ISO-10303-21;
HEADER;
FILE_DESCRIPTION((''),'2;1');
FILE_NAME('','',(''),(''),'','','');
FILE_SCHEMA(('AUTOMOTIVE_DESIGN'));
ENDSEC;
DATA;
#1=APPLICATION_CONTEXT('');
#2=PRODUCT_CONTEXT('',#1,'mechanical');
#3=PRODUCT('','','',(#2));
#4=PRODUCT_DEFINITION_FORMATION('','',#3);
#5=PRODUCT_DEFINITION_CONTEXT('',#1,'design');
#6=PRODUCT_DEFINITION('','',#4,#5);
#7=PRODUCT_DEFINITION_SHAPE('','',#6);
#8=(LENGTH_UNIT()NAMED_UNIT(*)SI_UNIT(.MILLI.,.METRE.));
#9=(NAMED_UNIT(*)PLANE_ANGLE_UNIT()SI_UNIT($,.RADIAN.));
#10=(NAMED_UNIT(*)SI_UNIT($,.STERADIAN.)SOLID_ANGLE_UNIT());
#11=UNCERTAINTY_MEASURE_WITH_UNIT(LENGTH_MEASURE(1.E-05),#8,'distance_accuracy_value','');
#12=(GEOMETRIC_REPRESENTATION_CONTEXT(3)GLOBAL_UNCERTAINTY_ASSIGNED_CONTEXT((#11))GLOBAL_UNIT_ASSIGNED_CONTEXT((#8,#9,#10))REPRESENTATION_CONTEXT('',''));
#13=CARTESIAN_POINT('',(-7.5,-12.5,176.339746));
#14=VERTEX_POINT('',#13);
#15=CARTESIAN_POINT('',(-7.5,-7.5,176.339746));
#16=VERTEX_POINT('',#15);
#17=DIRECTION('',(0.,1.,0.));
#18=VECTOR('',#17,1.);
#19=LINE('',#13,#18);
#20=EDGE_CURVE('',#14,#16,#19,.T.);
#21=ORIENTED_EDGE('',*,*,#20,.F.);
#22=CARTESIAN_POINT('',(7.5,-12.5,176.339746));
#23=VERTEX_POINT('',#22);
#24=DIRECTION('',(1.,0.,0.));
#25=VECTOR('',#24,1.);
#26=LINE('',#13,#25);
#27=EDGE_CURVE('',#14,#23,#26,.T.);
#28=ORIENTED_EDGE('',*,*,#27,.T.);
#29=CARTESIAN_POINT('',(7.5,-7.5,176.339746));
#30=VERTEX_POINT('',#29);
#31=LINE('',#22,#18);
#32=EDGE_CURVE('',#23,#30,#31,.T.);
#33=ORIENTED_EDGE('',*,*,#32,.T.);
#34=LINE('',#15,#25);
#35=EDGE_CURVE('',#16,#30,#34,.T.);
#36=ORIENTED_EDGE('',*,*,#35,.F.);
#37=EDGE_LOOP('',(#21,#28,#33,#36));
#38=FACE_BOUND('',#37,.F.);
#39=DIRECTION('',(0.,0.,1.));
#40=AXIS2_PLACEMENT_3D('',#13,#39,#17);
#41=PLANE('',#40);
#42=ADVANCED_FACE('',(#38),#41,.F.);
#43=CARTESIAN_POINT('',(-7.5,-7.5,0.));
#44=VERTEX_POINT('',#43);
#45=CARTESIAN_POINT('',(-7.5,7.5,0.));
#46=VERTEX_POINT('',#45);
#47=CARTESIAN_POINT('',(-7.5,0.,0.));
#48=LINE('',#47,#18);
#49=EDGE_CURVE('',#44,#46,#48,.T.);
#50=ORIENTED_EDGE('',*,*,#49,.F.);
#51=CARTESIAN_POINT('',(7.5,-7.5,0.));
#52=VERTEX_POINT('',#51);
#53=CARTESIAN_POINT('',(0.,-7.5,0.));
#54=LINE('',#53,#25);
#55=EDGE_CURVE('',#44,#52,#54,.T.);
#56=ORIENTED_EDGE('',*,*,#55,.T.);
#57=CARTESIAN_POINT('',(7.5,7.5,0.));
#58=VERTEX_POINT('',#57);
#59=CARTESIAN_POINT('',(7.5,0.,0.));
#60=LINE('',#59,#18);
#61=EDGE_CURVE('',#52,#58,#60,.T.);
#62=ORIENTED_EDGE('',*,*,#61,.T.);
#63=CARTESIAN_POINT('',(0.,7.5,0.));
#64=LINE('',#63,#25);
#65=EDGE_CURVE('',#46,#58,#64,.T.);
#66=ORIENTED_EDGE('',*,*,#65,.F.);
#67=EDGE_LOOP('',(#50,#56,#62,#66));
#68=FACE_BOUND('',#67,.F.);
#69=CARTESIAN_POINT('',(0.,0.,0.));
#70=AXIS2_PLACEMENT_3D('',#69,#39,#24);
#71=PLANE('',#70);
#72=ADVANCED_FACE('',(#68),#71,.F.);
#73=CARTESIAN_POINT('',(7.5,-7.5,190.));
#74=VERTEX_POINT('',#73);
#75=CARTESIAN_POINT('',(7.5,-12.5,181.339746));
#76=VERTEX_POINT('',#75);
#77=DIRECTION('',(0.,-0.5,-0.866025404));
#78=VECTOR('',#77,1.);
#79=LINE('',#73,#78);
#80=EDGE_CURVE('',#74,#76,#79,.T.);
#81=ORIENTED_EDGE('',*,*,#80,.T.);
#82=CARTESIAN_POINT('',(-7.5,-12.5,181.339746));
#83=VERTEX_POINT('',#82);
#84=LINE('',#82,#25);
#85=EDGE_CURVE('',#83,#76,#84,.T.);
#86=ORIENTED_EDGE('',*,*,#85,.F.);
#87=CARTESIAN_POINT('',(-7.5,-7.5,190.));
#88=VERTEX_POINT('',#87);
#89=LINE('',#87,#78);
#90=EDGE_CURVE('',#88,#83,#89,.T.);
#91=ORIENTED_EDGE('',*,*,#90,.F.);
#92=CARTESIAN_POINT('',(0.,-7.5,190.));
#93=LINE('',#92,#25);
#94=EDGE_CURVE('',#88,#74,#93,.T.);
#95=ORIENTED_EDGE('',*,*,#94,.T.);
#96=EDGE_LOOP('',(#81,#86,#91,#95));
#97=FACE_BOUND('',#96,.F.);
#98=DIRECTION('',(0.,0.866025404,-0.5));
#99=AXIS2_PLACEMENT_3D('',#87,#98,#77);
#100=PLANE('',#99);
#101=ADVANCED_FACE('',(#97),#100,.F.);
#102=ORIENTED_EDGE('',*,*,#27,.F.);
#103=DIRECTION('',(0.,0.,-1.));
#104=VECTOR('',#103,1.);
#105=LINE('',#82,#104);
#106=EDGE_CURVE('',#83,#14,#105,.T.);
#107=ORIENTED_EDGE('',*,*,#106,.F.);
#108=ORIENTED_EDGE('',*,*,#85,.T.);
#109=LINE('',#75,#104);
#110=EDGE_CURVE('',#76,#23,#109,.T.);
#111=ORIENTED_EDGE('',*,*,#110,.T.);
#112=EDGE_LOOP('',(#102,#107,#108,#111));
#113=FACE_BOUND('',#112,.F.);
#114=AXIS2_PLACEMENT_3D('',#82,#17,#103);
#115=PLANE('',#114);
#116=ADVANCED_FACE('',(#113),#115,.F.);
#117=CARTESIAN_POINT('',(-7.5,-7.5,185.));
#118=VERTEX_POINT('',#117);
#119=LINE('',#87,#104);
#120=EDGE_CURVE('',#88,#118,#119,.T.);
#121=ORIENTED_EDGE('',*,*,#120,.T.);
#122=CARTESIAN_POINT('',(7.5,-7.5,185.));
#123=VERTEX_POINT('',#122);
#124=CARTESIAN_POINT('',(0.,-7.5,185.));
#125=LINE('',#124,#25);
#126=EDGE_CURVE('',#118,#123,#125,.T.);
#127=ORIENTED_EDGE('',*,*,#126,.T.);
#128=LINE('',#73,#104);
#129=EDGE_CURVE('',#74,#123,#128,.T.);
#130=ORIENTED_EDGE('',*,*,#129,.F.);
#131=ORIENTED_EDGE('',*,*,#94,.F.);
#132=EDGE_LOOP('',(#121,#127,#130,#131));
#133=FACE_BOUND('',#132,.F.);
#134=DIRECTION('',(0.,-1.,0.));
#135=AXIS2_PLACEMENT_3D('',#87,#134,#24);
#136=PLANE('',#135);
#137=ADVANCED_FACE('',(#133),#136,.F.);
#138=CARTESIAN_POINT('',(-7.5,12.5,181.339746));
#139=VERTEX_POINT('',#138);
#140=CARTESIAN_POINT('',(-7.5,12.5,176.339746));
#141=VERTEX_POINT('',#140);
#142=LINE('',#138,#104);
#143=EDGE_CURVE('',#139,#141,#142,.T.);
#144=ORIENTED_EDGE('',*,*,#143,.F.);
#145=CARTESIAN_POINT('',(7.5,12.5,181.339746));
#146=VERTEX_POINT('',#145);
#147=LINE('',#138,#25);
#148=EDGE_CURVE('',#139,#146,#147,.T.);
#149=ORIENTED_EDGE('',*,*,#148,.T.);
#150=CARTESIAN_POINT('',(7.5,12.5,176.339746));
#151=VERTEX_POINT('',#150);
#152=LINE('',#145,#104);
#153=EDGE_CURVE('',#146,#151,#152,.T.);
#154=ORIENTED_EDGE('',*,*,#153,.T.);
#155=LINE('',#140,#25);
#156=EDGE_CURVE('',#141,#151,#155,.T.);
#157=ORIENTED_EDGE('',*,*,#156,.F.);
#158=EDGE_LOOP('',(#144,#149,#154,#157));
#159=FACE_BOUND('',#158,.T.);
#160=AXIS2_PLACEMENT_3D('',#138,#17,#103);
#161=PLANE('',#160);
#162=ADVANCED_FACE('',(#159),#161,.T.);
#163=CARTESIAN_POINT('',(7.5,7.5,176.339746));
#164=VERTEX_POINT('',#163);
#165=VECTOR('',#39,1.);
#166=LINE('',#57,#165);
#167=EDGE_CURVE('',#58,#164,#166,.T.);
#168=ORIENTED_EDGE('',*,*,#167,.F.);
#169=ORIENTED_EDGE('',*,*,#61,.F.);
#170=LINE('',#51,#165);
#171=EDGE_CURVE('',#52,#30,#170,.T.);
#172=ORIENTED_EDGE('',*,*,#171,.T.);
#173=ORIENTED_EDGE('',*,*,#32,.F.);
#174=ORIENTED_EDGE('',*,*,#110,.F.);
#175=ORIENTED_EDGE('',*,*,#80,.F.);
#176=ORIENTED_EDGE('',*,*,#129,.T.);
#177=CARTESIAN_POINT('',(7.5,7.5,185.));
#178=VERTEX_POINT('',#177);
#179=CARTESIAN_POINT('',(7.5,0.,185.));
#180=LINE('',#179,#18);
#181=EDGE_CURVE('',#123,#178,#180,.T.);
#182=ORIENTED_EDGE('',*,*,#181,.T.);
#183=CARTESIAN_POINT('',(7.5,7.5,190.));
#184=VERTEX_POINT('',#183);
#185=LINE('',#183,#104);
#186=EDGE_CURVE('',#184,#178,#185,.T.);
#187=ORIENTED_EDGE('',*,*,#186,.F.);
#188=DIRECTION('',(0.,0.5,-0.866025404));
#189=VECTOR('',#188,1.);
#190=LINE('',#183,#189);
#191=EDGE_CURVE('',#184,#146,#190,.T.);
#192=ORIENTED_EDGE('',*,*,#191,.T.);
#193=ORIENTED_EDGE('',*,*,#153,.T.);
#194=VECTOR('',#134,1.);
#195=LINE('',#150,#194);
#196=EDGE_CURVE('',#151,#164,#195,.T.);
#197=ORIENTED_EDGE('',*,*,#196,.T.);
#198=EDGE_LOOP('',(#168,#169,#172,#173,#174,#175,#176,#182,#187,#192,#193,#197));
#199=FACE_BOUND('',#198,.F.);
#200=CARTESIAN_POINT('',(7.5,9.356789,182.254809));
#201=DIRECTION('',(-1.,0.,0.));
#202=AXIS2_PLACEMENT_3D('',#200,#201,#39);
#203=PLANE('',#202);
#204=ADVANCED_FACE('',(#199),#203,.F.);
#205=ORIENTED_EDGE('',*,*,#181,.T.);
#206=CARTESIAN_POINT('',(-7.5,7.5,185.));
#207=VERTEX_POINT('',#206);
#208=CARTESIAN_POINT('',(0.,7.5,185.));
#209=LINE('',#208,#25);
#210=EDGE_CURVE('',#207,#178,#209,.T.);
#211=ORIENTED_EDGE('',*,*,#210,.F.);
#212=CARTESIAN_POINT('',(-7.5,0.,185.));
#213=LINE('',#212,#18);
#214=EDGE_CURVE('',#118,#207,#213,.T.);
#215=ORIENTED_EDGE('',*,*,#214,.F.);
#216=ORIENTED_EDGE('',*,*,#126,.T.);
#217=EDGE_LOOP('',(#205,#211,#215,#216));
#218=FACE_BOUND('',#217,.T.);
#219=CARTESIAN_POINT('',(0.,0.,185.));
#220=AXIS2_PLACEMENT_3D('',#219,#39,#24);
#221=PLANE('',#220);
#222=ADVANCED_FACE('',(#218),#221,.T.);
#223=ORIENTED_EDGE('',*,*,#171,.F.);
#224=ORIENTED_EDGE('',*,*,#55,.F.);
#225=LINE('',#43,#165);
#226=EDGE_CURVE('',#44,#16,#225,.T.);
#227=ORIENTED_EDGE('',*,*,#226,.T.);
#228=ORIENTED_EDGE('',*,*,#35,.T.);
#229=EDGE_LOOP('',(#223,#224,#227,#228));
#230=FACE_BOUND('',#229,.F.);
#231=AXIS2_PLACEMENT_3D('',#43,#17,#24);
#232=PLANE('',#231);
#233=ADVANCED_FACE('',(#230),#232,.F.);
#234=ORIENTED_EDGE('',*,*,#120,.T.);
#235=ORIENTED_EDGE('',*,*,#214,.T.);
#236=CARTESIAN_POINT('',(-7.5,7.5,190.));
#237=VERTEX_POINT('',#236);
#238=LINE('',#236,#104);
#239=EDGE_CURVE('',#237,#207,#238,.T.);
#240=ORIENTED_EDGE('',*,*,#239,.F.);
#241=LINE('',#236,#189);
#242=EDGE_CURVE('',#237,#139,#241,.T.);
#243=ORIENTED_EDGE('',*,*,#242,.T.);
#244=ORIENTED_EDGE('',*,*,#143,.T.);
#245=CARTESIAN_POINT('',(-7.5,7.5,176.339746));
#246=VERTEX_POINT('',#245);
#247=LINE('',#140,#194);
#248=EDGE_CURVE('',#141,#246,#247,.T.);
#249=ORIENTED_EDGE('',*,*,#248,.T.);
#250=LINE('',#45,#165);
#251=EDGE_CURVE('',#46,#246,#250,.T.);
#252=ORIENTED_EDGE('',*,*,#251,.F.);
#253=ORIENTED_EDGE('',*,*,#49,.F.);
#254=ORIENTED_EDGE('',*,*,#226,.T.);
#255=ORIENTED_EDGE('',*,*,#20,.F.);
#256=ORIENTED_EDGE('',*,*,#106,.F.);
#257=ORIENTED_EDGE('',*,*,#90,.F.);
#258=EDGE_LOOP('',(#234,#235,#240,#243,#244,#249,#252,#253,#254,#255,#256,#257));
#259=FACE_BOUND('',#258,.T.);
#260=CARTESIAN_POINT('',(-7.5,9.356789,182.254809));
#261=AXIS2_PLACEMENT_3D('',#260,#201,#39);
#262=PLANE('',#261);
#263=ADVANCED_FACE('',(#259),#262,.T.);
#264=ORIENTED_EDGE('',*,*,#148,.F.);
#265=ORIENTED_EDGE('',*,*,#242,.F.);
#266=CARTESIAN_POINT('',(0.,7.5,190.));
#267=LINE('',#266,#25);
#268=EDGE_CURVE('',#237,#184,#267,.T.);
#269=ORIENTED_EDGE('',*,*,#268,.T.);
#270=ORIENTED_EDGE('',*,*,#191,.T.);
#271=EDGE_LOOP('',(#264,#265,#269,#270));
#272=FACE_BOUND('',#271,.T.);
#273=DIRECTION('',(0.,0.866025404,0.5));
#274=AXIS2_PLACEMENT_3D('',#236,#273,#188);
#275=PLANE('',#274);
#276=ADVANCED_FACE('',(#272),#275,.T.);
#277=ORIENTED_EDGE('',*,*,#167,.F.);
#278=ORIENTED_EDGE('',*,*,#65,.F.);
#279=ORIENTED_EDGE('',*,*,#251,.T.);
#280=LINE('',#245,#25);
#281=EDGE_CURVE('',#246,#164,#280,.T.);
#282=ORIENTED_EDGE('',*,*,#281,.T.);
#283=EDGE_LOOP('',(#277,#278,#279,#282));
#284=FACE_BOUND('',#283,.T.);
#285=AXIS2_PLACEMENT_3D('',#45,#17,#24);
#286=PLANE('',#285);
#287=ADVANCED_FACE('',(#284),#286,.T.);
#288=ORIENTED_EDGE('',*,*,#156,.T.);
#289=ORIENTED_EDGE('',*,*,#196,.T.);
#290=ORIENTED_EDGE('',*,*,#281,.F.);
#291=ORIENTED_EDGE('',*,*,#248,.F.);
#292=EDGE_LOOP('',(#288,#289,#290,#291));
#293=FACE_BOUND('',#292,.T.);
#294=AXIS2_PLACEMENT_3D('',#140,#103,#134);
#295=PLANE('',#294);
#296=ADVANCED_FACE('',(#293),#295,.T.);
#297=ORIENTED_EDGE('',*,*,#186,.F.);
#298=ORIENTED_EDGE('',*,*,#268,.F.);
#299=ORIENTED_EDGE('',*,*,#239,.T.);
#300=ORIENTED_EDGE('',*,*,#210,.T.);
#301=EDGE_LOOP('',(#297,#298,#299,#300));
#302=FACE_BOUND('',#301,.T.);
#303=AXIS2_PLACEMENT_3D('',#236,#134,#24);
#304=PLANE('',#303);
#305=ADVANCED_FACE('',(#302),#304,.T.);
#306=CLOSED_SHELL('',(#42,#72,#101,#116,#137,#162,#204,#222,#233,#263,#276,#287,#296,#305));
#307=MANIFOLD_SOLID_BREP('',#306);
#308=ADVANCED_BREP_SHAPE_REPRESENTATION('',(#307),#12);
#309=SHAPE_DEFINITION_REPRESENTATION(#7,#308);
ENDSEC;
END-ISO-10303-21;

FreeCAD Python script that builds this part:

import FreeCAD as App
import Part
import Sketcher

V = App.Vector
Q = App.Units.Quantity

doc = App.newDocument("Part")
body = doc.addObject("PartDesign::Body", "Body")

sketch1 = body.newObject("Sketcher::SketchObject", "Sketch")
sketch1.AttachmentSupport = (doc.getObject("XY_Plane"), [""])
sketch1.MapMode = "FlatFace"
sketch1.addGeometry([
    Part.LineSegment(V(-8, 8, 0), V(-8, -8, 0)),
    Part.LineSegment(V(-8, -8, 0), V(8, -8, 0)),
    Part.LineSegment(V(8, -8, 0), V(8, 8, 0)),
    Part.LineSegment(V(8, 8, 0), V(-8, 8, 0)),
], False)
sketch1.addConstraint([
    Sketcher.Constraint("Coincident", 0, 2, 1, 1),
    Sketcher.Constraint("Coincident", 1, 2, 2, 1),
    Sketcher.Constraint("Coincident", 2, 2, 3, 1),
    Sketcher.Constraint("Coincident", 3, 2, 0, 1),
    Sketcher.Constraint("Vertical", 0),
    Sketcher.Constraint("Horizontal", 1),
    Sketcher.Constraint("Vertical", 2),
    Sketcher.Constraint("Horizontal", 3),
    Sketcher.Constraint("Symmetric", 0, 2, 2, 2, -1, 1),
    Sketcher.Constraint("Equal", 3, 0),
    Sketcher.Constraint("DistanceX", 1, 1, 1, 2, 15.0),
])
pad1 = body.newObject("PartDesign::Pad", "Pad")
pad1.Profile = sketch1
pad1.Length = 190

sketch2 = body.newObject("Sketcher::SketchObject", "Sketch001")
sketch2.AttachmentSupport = (doc.getObject("YZ_Plane"), [""])
sketch2.MapMode = "FlatFace"
sketch2.AttachmentOffset = App.Placement(V(0, 0, -7.5), App.Rotation())
sketch2.addGeometry([
    Part.LineSegment(V(8, 190, 0), V(12, 181, 0)),
    Part.LineSegment(V(12, 181, 0), V(12, 176, 0)),
    Part.LineSegment(V(12, 176, 0), V(8, 176, 0)),
    Part.LineSegment(V(8, 176, 0), V(8, 190, 0)),
    Part.LineSegment(V(-8, 176, 0), V(-12, 176, 0)),
    Part.LineSegment(V(-12, 176, 0), V(-12, 181, 0)),
    Part.LineSegment(V(-12, 181, 0), V(-8, 190, 0)),
    Part.LineSegment(V(-8, 190, 0), V(-8, 176, 0)),
], False)
sketch2.addConstraint([
    Sketcher.Constraint("Coincident", 0, 2, 1, 1),
    Sketcher.Constraint("Coincident", 1, 2, 2, 1),
    Sketcher.Constraint("Coincident", 2, 2, 3, 1),
    Sketcher.Constraint("Coincident", 3, 2, 0, 1),
    Sketcher.Constraint("Coincident", 4, 2, 5, 1),
    Sketcher.Constraint("Coincident", 5, 2, 6, 1),
    Sketcher.Constraint("Coincident", 6, 2, 7, 1),
    Sketcher.Constraint("Coincident", 7, 2, 4, 1),
    Sketcher.Constraint("Vertical", 1),
    Sketcher.Constraint("Horizontal", 2),
    Sketcher.Constraint("Vertical", 3),
    Sketcher.Constraint("Horizontal", 4),
    Sketcher.Constraint("Vertical", 5),
    Sketcher.Constraint("Vertical", 7),
    Sketcher.Constraint("Symmetric", 1, 2, 4, 2, -2),
    Sketcher.Constraint("Symmetric", 3, 2, 6, 2, -2),
    Sketcher.Constraint("Horizontal", 0, 2, 5, 2),
    Sketcher.Constraint("Equal", 4, 1),
    Sketcher.Constraint("DistanceX", 2, 2, 2, 1, 5.0),
    Sketcher.Constraint("Angle", 0, Q("-60 deg")),
    Sketcher.Constraint("DistanceY", -1, 1, 3, 2, 190.0),
    Sketcher.Constraint("DistanceX", 4, 2, 2, 2, 20.0),
])
pad2 = body.newObject("PartDesign::Pad", "Pad001")
pad2.Profile = sketch2
pad2.Length = 15

sketch3 = body.newObject("Sketcher::SketchObject", "Sketch002")
sketch3.AttachmentSupport = (doc.getObject("XY_Plane"), [""])
sketch3.MapMode = "FlatFace"
sketch3.AttachmentOffset = App.Placement(V(0, 0, 190), App.Rotation())
sketch3.addGeometry([
    Part.LineSegment(V(-8, 8, 0), V(-8, -8, 0)),
    Part.LineSegment(V(-8, -8, 0), V(8, -8, 0)),
    Part.LineSegment(V(8, -8, 0), V(8, 8, 0)),
    Part.LineSegment(V(8, 8, 0), V(-8, 8, 0)),
], False)
sketch3.addConstraint([
    Sketcher.Constraint("Coincident", 0, 2, 1, 1),
    Sketcher.Constraint("Coincident", 1, 2, 2, 1),
    Sketcher.Constraint("Coincident", 2, 2, 3, 1),
    Sketcher.Constraint("Coincident", 3, 2, 0, 1),
    Sketcher.Constraint("Vertical", 0),
    Sketcher.Constraint("Horizontal", 1),
    Sketcher.Constraint("Vertical", 2),
    Sketcher.Constraint("Horizontal", 3),
    Sketcher.Constraint("Symmetric", 0, 2, 2, 2, -1, 1),
    Sketcher.Constraint("Equal", 3, 0),
    Sketcher.Constraint("DistanceX", 1, 1, 1, 2, 15.0),
])
pocket1 = body.newObject("PartDesign::Pocket", "Pocket")
pocket1.Profile = sketch3
pocket1.Length = 5

doc.recompute()
